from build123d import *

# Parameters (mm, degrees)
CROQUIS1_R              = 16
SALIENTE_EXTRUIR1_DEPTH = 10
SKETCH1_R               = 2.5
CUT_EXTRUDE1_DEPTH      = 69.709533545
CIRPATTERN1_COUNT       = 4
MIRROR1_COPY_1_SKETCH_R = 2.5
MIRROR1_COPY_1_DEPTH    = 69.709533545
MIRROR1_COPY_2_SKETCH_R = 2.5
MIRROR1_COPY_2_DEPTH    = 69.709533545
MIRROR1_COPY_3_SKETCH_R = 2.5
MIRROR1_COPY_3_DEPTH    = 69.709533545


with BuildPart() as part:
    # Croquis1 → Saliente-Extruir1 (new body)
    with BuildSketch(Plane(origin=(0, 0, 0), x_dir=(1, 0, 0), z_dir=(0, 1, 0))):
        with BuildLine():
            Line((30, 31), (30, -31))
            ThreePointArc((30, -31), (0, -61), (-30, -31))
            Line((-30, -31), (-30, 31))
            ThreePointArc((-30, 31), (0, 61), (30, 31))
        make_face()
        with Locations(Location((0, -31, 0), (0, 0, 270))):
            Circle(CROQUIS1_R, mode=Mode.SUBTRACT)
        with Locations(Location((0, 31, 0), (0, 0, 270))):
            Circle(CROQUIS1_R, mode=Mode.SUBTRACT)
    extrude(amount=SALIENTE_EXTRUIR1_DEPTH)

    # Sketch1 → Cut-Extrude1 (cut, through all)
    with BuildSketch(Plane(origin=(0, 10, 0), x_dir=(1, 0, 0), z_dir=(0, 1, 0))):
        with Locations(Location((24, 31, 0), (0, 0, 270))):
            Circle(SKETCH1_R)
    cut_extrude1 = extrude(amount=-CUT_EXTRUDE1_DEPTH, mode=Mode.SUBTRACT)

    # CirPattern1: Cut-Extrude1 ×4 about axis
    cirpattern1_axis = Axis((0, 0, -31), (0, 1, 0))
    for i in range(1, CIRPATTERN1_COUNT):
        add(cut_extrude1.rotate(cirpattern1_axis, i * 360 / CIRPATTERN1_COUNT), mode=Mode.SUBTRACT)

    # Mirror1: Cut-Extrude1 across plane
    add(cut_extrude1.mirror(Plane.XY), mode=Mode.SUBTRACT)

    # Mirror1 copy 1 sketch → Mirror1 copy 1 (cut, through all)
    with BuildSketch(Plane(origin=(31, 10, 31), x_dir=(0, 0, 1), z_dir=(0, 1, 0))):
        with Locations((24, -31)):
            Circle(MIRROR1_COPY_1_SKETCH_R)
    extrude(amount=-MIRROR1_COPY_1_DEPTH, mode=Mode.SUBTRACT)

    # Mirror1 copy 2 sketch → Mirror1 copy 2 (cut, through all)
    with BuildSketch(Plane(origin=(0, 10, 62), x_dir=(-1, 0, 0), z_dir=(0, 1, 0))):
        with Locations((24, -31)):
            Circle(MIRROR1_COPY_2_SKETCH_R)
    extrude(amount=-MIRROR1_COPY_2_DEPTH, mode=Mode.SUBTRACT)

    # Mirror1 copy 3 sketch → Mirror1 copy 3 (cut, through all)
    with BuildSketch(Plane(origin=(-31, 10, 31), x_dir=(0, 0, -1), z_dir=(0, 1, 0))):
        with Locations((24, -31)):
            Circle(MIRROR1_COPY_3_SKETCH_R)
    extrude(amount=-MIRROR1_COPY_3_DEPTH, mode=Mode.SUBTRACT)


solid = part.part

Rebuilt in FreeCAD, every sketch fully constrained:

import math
import FreeCAD as App
import Part
import Sketcher

V = App.Vector
Q = App.Units.Quantity

doc = App.newDocument("Part")
body = doc.addObject("PartDesign::Body", "Body")

# Sketch on XZ plane
sketch1 = doc.addObject("Sketcher::SketchObject", "Sketch")
body.addObject(sketch1)
sketch1.AttachmentSupport = (doc.XZ_Plane, [""])
sketch1.MapMode = "FlatFace"
sketch1.addGeometry([
    Part.LineSegment(V(30, 31, 0), V(30, -31, 0)),  # 0
    Part.ArcOfCircle(Part.Circle(V(0, -31, 0), V(0, 0, 1), 30), math.radians(180), math.radians(360)),  # 1
    Part.LineSegment(V(-30, -31, 0), V(-30, 31, 0)),  # 2
    Part.ArcOfCircle(Part.Circle(V(0, 31, 0), V(0, 0, 1), 30), math.radians(0), math.radians(180)),  # 3
    Part.Circle(V(0, 31, 0), V(0, 0, 1), 16),  # 4
    Part.Circle(V(0, -31, 0), V(0, 0, 1), 16),  # 5
], False)
sketch1.addConstraint([
    Sketcher.Constraint("Tangent", 0, 2, 1, 2),
    Sketcher.Constraint("Tangent", 1, 1, 2, 1),
    Sketcher.Constraint("Tangent", 2, 2, 3, 2),
    Sketcher.Constraint("Tangent", 3, 1, 0, 1),
    Sketcher.Constraint("Vertical", 0),
    Sketcher.Constraint("Vertical", 2),
    Sketcher.Constraint("Coincident", 4, 3, 3, 3),
    Sketcher.Constraint("Coincident", 5, 3, 1, 3),
    Sketcher.Constraint("Equal", 4, 5),
    Sketcher.Constraint("Symmetric", 1, 3, 3, 3, -1, 1),
    Sketcher.Constraint("Diameter", 4, Q("32 mm")),
    Sketcher.Constraint("Radius", 1, Q("30 mm")),
    Sketcher.Constraint("DistanceY", 0, 2, 0, 1, Q("62 mm")),
])
pad1 = doc.addObject("PartDesign::Pad", "Pad")
body.addObject(pad1)
pad1.Profile = sketch1
pad1.Length = 10
pad1.Reversed = True

# Sketch on XZ plane
sketch2 = doc.addObject("Sketcher::SketchObject", "Sketch001")
body.addObject(sketch2)
sketch2.AttachmentSupport = (doc.XZ_Plane, [""])
sketch2.MapMode = "FlatFace"
sketch2.AttachmentOffset = App.Placement(V(0, 0, -10), App.Rotation())
sketch2.addGeometry(Part.Circle(V(24, -31, 0), V(0, 0, 1), 2.5), False)
sketch2.addConstraint([
    Sketcher.Constraint("Diameter", 0, Q("5 mm")),
    Sketcher.Constraint("DistanceX", -1, 1, 0, 3, Q("24 mm")),
    Sketcher.Constraint("DistanceY", 0, 3, -1, 1, Q("31 mm")),
])
pocket1 = doc.addObject("PartDesign::Pocket", "Pocket")
body.addObject(pocket1)
pocket1.Profile = sketch2
pocket1.Type = "ThroughAll"
pocket1.Reversed = True
doc.recompute()

datumline = doc.addObject("PartDesign::Line", "DatumLine")
body.addObject(datumline)
datumline.Placement = App.Placement(V(0, 0, -31), App.Rotation(V(0, 0, 1), V(0, 1, 0)))
polarpattern = doc.addObject("PartDesign::PolarPattern", "PolarPattern")
body.addObject(polarpattern)
polarpattern.Originals = [pocket1]
polarpattern.Axis = (datumline, [""])
polarpattern.Angle = 360
polarpattern.Occurrences = 4
body.Tip = polarpattern
doc.recompute()

mirrored = doc.addObject("PartDesign::Mirrored", "Mirrored")
body.addObject(mirrored)
mirrored.Originals = [pocket1]
mirrored.MirrorPlane = (doc.XY_Plane, [""])
body.Tip = mirrored

# Sketch on XZ plane
sketch3 = doc.addObject("Sketcher::SketchObject", "Sketch002")
body.addObject(sketch3)
sketch3.AttachmentSupport = (doc.XZ_Plane, [""])
sketch3.MapMode = "FlatFace"
sketch3.AttachmentOffset = App.Placement(V(0, 0, -10), App.Rotation())
sketch3.addGeometry(Part.Circle(V(0, 55, 0), V(0, 0, 1), 2.5), False)
sketch3.addConstraint([
    Sketcher.Constraint("PointOnObject", 0, 3, -2),
    Sketcher.Constraint("Diameter", 0, Q("5 mm")),
    Sketcher.Constraint("DistanceY", -1, 1, 0, 3, Q("55 mm")),
])
pocket2 = doc.addObject("PartDesign::Pocket", "Pocket001")
body.addObject(pocket2)
pocket2.Profile = sketch3
pocket2.Type = "ThroughAll"
pocket2.Reversed = True

# Sketch on XZ plane
sketch4 = doc.addObject("Sketcher::SketchObject", "Sketch003")
body.addObject(sketch4)
sketch4.AttachmentSupport = (doc.XZ_Plane, [""])
sketch4.MapMode = "FlatFace"
sketch4.AttachmentOffset = App.Placement(V(0, 0, -10), App.Rotation())
sketch4.addGeometry(Part.Circle(V(-24, 31, 0), V(0, 0, 1), 2.5), False)
sketch4.addConstraint([
    Sketcher.Constraint("Diameter", 0, Q("5 mm")),
    Sketcher.Constraint("DistanceX", 0, 3, -1, 1, Q("24 mm")),
    Sketcher.Constraint("DistanceY", -1, 1, 0, 3, Q("31 mm")),
])
pocket3 = doc.addObject("PartDesign::Pocket", "Pocket002")
body.addObject(pocket3)
pocket3.Profile = sketch4
pocket3.Type = "ThroughAll"
pocket3.Reversed = True

# Sketch on XZ plane
sketch5 = doc.addObject("Sketcher::SketchObject", "Sketch004")
body.addObject(sketch5)
sketch5.AttachmentSupport = (doc.XZ_Plane, [""])
sketch5.MapMode = "FlatFace"
sketch5.AttachmentOffset = App.Placement(V(0, 0, -10), App.Rotation())
sketch5.addGeometry(Part.Circle(V(0, 7, 0), V(0, 0, 1), 2.5), False)
sketch5.addConstraint([
    Sketcher.Constraint("PointOnObject", 0, 3, -2),
    Sketcher.Constraint("Diameter", 0, Q("5 mm")),
    Sketcher.Constraint("DistanceY", -1, 1, 0, 3, Q("7 mm")),
])
pocket4 = doc.addObject("PartDesign::Pocket", "Pocket003")
body.addObject(pocket4)
pocket4.Profile = sketch5
pocket4.Type = "ThroughAll"
pocket4.Reversed = True

doc.recompute()
